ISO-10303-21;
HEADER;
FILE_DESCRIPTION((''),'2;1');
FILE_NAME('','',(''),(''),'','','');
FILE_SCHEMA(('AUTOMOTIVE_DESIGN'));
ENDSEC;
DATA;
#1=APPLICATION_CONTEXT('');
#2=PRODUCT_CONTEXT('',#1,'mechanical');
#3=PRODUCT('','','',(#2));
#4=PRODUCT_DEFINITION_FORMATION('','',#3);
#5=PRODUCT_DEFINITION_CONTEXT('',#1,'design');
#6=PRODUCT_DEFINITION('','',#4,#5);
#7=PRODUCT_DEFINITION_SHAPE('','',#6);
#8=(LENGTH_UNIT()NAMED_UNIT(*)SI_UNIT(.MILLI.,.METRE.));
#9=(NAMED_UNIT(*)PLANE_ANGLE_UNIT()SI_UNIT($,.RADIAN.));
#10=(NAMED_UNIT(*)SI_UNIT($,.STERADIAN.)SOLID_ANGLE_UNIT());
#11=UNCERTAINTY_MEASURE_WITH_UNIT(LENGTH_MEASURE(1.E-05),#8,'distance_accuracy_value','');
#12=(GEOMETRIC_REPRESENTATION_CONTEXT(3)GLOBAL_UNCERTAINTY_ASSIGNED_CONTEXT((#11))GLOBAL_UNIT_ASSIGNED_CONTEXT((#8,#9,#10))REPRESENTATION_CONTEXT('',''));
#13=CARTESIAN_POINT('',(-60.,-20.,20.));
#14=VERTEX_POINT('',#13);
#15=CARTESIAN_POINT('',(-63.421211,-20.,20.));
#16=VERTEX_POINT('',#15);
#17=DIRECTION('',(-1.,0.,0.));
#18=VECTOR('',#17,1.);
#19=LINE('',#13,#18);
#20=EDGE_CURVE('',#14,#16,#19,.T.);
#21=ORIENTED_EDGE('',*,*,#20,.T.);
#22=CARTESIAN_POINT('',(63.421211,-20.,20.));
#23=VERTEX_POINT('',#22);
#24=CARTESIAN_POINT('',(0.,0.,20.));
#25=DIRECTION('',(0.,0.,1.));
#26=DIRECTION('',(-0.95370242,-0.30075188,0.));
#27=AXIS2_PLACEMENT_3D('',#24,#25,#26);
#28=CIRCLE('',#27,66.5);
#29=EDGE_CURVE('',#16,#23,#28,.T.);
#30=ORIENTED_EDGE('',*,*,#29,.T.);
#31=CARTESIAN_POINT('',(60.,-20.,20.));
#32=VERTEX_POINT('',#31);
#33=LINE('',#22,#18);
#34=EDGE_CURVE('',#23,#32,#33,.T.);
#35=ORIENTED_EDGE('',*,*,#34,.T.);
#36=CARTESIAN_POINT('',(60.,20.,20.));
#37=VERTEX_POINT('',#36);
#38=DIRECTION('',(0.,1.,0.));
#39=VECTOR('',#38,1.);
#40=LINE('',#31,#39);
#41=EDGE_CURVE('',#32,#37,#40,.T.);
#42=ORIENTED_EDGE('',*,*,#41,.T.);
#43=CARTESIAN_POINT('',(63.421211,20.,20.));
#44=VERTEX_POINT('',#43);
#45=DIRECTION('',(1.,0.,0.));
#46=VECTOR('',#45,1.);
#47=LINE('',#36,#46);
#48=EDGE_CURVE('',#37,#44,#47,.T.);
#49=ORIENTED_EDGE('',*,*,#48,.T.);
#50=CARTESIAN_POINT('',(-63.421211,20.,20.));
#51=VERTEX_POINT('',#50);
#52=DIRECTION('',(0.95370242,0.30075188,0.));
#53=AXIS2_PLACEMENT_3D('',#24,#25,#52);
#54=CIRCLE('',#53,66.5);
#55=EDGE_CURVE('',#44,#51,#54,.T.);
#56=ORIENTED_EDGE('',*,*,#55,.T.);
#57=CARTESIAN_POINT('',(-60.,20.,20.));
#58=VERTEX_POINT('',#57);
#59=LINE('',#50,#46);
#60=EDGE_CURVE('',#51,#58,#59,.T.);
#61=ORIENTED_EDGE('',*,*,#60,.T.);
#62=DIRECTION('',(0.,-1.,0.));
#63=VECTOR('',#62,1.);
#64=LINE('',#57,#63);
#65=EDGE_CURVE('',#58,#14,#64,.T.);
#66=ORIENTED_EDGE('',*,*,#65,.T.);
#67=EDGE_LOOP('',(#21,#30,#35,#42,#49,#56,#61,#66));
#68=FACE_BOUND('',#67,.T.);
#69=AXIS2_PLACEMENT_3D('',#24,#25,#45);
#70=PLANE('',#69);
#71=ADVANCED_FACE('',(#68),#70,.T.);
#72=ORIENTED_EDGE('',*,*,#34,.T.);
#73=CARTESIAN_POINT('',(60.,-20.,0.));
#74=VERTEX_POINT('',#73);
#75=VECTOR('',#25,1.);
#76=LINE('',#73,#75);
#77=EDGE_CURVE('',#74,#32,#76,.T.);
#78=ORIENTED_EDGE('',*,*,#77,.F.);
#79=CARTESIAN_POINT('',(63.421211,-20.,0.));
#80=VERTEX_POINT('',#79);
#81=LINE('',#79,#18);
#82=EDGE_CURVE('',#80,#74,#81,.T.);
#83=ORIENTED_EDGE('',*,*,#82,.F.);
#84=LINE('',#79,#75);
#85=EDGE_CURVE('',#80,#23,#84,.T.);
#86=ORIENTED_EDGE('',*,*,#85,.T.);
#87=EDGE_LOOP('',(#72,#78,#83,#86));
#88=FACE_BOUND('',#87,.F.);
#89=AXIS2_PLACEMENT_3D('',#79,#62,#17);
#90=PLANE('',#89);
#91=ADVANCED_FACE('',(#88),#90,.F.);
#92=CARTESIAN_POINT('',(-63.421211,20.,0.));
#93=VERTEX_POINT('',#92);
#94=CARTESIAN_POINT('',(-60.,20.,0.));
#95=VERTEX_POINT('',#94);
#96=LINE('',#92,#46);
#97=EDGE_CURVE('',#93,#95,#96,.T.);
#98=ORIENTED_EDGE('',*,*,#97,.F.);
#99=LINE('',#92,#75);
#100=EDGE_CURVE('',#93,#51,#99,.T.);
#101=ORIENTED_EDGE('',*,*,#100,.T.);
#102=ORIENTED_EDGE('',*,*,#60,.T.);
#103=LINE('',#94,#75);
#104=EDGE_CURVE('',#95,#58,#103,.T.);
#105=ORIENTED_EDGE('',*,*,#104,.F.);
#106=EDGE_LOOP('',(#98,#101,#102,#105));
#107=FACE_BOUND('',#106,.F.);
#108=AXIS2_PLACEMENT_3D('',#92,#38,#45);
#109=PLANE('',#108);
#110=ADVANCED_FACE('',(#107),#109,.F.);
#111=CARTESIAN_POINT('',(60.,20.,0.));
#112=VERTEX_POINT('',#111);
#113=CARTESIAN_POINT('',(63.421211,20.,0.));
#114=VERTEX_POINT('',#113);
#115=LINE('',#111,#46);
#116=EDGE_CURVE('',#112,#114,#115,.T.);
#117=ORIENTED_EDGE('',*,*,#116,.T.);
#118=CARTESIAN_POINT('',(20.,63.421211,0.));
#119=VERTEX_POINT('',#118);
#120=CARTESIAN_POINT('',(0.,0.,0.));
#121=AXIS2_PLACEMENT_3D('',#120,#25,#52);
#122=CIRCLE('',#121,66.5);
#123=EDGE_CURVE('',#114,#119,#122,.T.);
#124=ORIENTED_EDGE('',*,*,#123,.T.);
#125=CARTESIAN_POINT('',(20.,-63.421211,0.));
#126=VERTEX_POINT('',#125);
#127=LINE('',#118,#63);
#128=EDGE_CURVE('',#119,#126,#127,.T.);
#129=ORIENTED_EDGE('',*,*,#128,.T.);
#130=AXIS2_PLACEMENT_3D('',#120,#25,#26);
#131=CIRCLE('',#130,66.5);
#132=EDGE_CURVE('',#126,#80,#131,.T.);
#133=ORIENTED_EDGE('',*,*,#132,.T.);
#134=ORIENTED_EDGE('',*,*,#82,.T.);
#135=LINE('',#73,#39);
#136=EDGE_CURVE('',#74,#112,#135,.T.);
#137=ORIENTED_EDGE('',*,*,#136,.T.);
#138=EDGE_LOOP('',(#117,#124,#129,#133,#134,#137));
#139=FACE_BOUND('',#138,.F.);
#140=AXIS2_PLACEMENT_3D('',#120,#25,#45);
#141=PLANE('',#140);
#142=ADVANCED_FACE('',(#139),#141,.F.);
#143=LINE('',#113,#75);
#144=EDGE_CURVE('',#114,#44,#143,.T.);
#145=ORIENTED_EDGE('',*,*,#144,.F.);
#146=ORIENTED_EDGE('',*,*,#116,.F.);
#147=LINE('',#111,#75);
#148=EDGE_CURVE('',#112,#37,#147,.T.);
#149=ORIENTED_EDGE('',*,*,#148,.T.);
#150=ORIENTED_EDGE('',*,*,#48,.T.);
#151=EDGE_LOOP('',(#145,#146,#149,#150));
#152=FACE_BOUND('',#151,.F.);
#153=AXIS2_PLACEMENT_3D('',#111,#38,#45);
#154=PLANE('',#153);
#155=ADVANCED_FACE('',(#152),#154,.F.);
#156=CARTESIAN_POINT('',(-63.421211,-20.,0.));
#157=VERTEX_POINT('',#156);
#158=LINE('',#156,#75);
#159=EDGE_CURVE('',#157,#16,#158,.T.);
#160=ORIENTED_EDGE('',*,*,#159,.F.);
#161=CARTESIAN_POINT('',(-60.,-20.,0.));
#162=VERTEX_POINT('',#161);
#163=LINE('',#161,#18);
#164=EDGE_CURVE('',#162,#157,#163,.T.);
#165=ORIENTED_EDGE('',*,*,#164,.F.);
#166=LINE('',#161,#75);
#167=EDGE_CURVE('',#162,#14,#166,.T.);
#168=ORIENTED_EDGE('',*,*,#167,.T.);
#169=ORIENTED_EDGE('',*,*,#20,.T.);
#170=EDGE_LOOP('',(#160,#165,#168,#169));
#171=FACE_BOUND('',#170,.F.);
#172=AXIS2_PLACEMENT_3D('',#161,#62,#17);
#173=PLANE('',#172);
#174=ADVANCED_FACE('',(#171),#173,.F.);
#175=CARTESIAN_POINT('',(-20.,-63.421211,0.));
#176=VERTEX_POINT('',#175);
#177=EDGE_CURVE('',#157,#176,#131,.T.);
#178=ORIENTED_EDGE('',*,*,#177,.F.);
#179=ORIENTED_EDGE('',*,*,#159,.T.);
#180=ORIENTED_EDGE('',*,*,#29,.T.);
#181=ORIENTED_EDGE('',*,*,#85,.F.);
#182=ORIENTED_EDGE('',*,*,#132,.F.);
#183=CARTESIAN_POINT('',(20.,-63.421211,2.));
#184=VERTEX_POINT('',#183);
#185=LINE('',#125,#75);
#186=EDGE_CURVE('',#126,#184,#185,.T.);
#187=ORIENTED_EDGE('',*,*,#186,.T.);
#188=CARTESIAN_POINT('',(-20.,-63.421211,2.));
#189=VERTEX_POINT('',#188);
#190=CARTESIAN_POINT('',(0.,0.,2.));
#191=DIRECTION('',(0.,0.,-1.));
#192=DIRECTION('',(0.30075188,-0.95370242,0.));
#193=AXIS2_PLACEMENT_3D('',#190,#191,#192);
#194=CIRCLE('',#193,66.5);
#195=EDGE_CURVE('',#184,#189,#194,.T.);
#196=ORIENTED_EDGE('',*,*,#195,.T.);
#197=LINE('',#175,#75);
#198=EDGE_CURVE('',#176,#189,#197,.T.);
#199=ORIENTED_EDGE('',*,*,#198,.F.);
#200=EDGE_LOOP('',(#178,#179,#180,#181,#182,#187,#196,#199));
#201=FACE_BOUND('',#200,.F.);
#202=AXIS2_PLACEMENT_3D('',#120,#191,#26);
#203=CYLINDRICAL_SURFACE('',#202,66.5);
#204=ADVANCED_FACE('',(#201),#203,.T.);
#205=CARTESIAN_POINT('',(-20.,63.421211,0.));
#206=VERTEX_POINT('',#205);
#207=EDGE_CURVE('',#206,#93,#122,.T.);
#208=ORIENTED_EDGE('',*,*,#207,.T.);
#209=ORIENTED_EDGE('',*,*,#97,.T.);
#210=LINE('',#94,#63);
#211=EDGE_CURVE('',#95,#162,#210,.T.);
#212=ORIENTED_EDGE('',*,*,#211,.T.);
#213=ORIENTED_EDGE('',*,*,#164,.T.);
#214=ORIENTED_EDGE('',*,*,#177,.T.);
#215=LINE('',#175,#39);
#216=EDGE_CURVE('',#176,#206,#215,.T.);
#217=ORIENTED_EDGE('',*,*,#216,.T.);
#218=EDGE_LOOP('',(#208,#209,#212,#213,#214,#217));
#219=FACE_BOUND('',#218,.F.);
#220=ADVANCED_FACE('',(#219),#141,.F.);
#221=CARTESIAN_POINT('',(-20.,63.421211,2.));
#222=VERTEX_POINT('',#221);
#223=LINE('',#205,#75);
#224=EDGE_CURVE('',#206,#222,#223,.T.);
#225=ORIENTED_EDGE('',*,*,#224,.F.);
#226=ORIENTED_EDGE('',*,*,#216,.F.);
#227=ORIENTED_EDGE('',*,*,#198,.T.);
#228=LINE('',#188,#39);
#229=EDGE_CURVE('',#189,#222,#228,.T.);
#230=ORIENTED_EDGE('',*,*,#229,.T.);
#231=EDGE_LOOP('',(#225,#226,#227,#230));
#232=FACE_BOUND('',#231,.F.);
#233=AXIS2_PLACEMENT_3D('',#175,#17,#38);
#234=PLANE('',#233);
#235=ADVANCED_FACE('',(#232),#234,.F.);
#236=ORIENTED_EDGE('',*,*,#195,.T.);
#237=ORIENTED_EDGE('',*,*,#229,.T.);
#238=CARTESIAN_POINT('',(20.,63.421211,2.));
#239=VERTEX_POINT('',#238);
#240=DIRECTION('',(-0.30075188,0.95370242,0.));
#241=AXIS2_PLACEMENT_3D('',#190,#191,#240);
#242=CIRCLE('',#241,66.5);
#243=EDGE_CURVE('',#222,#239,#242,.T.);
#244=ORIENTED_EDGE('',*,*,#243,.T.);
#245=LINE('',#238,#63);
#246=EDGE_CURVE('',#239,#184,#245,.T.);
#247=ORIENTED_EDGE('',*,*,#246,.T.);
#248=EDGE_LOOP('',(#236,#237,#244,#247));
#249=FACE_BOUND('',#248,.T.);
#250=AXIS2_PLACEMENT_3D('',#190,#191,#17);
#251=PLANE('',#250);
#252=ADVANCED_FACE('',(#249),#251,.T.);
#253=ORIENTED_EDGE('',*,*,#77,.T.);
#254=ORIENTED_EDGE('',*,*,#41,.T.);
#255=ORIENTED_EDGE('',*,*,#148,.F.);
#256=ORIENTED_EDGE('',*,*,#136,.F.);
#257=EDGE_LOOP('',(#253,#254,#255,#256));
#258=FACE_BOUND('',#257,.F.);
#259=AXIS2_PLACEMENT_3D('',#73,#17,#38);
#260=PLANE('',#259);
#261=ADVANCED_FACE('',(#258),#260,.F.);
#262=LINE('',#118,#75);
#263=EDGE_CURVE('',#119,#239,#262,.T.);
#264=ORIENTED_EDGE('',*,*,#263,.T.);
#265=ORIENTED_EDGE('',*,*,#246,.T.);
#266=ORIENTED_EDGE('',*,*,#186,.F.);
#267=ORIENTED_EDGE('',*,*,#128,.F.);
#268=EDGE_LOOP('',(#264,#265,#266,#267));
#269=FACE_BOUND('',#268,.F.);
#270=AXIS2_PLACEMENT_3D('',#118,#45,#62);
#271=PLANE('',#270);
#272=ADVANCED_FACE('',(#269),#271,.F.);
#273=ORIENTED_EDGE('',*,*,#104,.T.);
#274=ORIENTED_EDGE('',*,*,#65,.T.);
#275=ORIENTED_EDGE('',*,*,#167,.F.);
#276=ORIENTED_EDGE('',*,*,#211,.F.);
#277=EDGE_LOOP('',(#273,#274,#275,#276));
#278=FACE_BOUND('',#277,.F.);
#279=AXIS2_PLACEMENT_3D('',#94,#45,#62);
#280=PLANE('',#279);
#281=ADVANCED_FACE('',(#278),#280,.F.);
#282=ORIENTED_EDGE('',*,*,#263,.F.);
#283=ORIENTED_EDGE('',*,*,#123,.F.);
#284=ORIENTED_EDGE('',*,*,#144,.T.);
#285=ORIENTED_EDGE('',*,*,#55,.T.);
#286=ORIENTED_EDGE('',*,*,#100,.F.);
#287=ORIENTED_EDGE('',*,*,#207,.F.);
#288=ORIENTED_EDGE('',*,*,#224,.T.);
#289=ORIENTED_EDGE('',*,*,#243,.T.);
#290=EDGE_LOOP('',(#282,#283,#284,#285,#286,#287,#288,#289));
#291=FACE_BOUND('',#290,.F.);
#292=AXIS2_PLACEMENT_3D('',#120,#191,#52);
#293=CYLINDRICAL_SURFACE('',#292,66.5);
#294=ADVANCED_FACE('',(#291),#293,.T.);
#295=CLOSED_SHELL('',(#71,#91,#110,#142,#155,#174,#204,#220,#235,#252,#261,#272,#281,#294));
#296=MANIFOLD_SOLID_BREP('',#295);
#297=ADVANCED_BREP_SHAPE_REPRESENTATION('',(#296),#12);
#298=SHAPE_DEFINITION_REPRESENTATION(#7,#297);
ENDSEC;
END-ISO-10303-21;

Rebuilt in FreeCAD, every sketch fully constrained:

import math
import FreeCAD as App
import Part
import Sketcher

V = App.Vector

doc = App.newDocument("Part")
body = doc.addObject("PartDesign::Body", "Body")

# Sketch on XY plane
sketch1 = body.newObject("Sketcher::SketchObject", "Sketch")
sketch1.AttachmentSupport = (doc.getObject("XY_Plane"), [""])
sketch1.MapMode = "FlatFace"
sketch1.addGeometry([
    Part.LineSegment(V(-63.421211, 20, 0), V(-60, 20, 0)),  # 0
    Part.LineSegment(V(-60, 20, 0), V(-60, -20, 0)),  # 1
    Part.LineSegment(V(-60, -20, 0), V(-63.421211, -20, 0)),  # 2
    Part.ArcOfCircle(Part.Circle(V(0, 0, 0), V(0, 0, 1), 66.5), math.radians(-162.497232), math.radians(-17.502768)),  # 3
    Part.LineSegment(V(63.421211, -20, 0), V(60, -20, 0)),  # 4
    Part.LineSegment(V(60, -20, 0), V(60, 20, 0)),  # 5
    Part.LineSegment(V(60, 20, 0), V(63.421211, 20, 0)),  # 6
    Part.ArcOfCircle(Part.Circle(V(0, 0, 0), V(0, 0, 1), 66.5), math.radians(17.502768), math.radians(162.497232)),  # 7
], False)
sketch1.addConstraint([
    Sketcher.Constraint("Coincident", 0, 2, 1, 1),
    Sketcher.Constraint("Coincident", 1, 2, 2, 1),
    Sketcher.Constraint("Coincident", 2, 2, 3, 1),
    Sketcher.Constraint("Coincident", 3, 2, 4, 1),
    Sketcher.Constraint("Coincident", 4, 2, 5, 1),
    Sketcher.Constraint("Coincident", 5, 2, 6, 1),
    Sketcher.Constraint("Coincident", 6, 2, 7, 1),
    Sketcher.Constraint("Coincident", 7, 2, 0, 1),
    Sketcher.Constraint("Horizontal", 0),
    Sketcher.Constraint("Vertical", 1),
    Sketcher.Constraint("Horizontal", 2),
    Sketcher.Constraint("Horizontal", 4),
    Sketcher.Constraint("Vertical", 5),
    Sketcher.Constraint("Horizontal", 6),
    Sketcher.Constraint("Coincident", 3, 3, -1, 1),
    Sketcher.Constraint("Coincident", 7, 3, -1, 1),
    Sketcher.Constraint("Equal", 3, 7),
    Sketcher.Constraint("Symmetric", 0, 2, 4, 2, -1, 1),
    Sketcher.Constraint("Horizontal", 2, 2, 3, 2),
    Sketcher.Constraint("Horizontal", 0, 2, 5, 2),
    Sketcher.Constraint("Radius", 3, 66.5),
    Sketcher.Constraint("DistanceY", 1, 2, 1, 1, 40.0),
    Sketcher.Constraint("DistanceX", 0, 2, -1, 1, 60.0),
])
pad1 = body.newObject("PartDesign::Pad", "Pad")
pad1.Profile = sketch1
pad1.Length = 20

# Sketch on XY plane
sketch2 = body.newObject("Sketcher::SketchObject", "Sketch001")
sketch2.AttachmentSupport = (doc.getObject("XY_Plane"), [""])
sketch2.MapMode = "FlatFace"
sketch2.addGeometry([
    Part.LineSegment(V(20, 63.421211, 0), V(20, -63.421211, 0)),
    Part.ArcOfCircle(Part.Circle(V(0, 0, 0), V(0, 0, 1), 66.5), math.radians(-107.502768), math.radians(-72.497232)),
    Part.LineSegment(V(-20, -63.421211, 0), V(-20, 63.421211, 0)),
    Part.ArcOfCircle(Part.Circle(V(0, 0, 0), V(0, 0, 1), 66.5), math.radians(72.497232), math.radians(107.502768)),
], False)
sketch2.addConstraint([
    Sketcher.Constraint("Coincident", 0, 2, 1, 2),
    Sketcher.Constraint("Coincident", 1, 1, 2, 1),
    Sketcher.Constraint("Coincident", 2, 2, 3, 2),
    Sketcher.Constraint("Coincident", 3, 1, 0, 1),
    Sketcher.Constraint("Vertical", 0),
    Sketcher.Constraint("Vertical", 2),
    Sketcher.Constraint("Coincident", 1, 3, -1, 1),
    Sketcher.Constraint("Coincident", 3, 3, -1, 1),
    Sketcher.Constraint("Equal", 1, 3),
    Sketcher.Constraint("Horizontal", 0, 2, 1, 1),
    Sketcher.Constraint("Radius", 1, 66.5),
    Sketcher.Constraint("DistanceX", -1, 1, 0, 2, 20.0),
])
pocket1 = body.newObject("PartDesign::Pocket", "Pocket")
pocket1.Profile = sketch2
pocket1.Length = 2
pocket1.Reversed = True

doc.recompute()
